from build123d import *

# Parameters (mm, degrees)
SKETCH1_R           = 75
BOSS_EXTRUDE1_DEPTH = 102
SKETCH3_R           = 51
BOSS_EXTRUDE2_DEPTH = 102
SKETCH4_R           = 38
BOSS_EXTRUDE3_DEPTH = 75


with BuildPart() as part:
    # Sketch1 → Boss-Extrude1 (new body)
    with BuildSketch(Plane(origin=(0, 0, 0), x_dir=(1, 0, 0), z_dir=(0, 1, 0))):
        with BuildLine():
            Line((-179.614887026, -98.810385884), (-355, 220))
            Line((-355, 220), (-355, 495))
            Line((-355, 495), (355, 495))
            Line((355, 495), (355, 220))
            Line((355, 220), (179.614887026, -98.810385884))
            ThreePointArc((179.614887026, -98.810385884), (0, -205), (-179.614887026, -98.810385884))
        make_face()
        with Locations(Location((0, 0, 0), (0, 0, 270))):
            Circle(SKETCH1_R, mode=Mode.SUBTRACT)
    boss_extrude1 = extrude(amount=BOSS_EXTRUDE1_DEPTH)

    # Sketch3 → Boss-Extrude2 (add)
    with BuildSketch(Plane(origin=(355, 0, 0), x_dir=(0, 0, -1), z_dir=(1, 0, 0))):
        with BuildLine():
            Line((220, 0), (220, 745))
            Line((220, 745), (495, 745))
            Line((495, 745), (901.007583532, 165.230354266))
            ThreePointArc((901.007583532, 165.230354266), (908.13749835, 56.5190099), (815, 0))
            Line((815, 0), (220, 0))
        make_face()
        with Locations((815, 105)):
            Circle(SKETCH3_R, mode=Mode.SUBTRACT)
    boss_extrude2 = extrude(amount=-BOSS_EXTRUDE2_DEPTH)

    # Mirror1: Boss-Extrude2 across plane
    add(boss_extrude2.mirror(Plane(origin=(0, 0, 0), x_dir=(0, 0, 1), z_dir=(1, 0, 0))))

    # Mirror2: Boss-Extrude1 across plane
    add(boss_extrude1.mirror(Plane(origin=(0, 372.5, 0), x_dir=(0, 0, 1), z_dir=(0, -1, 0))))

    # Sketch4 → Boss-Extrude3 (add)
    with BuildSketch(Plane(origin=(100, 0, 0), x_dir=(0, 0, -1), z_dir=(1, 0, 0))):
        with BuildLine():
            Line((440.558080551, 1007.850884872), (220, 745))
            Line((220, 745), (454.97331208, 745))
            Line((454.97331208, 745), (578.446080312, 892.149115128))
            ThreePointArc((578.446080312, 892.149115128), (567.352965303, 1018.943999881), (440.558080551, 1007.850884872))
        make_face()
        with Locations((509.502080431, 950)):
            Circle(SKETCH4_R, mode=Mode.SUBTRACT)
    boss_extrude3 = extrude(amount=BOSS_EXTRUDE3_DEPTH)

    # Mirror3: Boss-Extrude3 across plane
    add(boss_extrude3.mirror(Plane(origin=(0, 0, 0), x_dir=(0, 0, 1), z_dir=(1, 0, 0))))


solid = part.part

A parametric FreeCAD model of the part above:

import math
import FreeCAD as App
import Part
import Sketcher
Q = App.Units.Quantity

doc = App.newDocument("Part")
params = doc.addObject("Spreadsheet::Sheet", "Params")
for row, (alias, value) in enumerate([
    ("sketch1_diameter", "150 mm"),
    ("sketch1_radius", "205 mm"),
    ("sketch1_width", "710 mm"),
    ("sketch1_height", "275 mm"),
    ("pad1_length", "102 mm"),
    ("sketch2_diameter", "102 mm"),
    ("sketch2_radius", "105 mm"),
    ("sketch2_width", "745 mm"),
    ("sketch2_height", "595 mm"),
    ("sketch2_height2", "275 mm"),
    ("pad2_length", "102 mm"),
    ("sketch3_diameter", "76 mm"),
    ("sketch3_radius", "90 mm"),
    ("pad3_length", "75 mm"),
], start=1):
    params.set(f"A{row}", alias)
    params.set(f"B{row}", "=" + value)
    params.setAlias(f"B{row}", alias)

body = doc.addObject("PartDesign::Body", "Body")

sketch1 = body.newObject("Sketcher::SketchObject", "Sketch")
sketch1.AttachmentSupport = (doc.getObject("XZ_Plane"), [""])
sketch1.MapMode = "FlatFace"
sketch1.addGeometry([
    Part.LineSegment(App.Vector(-355, -220, 0), App.Vector(-180, 99, 0)),
    Part.ArcOfCircle(Part.Circle(App.Vector(0, 0, 0), App.Vector(0, 0, 1), 205), math.radians(29), math.radians(151)),
    Part.LineSegment(App.Vector(180, 99, 0), App.Vector(355, -220, 0)),
    Part.LineSegment(App.Vector(355, -220, 0), App.Vector(355, -495, 0)),
    Part.LineSegment(App.Vector(355, -495, 0), App.Vector(-355, -495, 0)),
    Part.LineSegment(App.Vector(-355, -495, 0), App.Vector(-355, -220, 0)),
    Part.Circle(App.Vector(0, 0, 0), App.Vector(0, 0, 1), 75),
], False)
sketch1.addConstraint([
    Sketcher.Constraint("Tangent", 0, 2, 1, 2),
    Sketcher.Constraint("Tangent", 1, 1, 2, 1),
    Sketcher.Constraint("Coincident", 2, 2, 3, 1),
    Sketcher.Constraint("Coincident", 3, 2, 4, 1),
    Sketcher.Constraint("Coincident", 4, 2, 5, 1),
    Sketcher.Constraint("Coincident", 5, 2, 0, 1),
    Sketcher.Constraint("Vertical", 3),
    Sketcher.Constraint("Horizontal", 4),
    Sketcher.Constraint("Vertical", 5),
    Sketcher.Constraint("Coincident", 1, 3, -1, 1),
    Sketcher.Constraint("Coincident", 6, 3, -1, 1),
    Sketcher.Constraint("Symmetric", 2, 2, 5, 2, -2),
    Sketcher.Constraint("Diameter", 6, 150.0),
    Sketcher.Constraint("Radius", 1, 205.0),
    Sketcher.Constraint("DistanceX", 4, 2, 4, 1, 710.0),
    Sketcher.Constraint("DistanceY", 3, 2, 3, 1, 275.0),
    Sketcher.Constraint("DistanceY", 2, 2, -1, 1, 220.0),
])
sketch1.setExpression("Constraints[12]", "Params.sketch1_diameter")
sketch1.setExpression("Constraints[13]", "Params.sketch1_radius")
sketch1.setExpression("Constraints[14]", "Params.sketch1_width")
sketch1.setExpression("Constraints[15]", "Params.sketch1_height")
pad1 = body.newObject("PartDesign::Pad", "Pad")
pad1.Profile = sketch1
pad1.setExpression("Length", "Params.pad1_length")
pad1.Reversed = True

sketch2 = body.newObject("Sketcher::SketchObject", "Sketch001")
sketch2.AttachmentSupport = (doc.getObject("YZ_Plane"), [""])
sketch2.MapMode = "FlatFace"
sketch2.AttachmentOffset = App.Placement(App.Vector(0, 0, 355), App.Rotation())
sketch2.addGeometry([
    Part.LineSegment(App.Vector(745, -220, 0), App.Vector(0, -220, 0)),
    Part.LineSegment(App.Vector(0, -220, 0), App.Vector(0, -815, 0)),
    Part.ArcOfCircle(Part.Circle(App.Vector(105, -815, 0), App.Vector(0, 0, 1), 105), math.radians(180), math.radians(305)),
    Part.LineSegment(App.Vector(165, -901, 0), App.Vector(745, -495, 0)),
    Part.LineSegment(App.Vector(745, -495, 0), App.Vector(745, -220, 0)),
    Part.Circle(App.Vector(105, -815, 0), App.Vector(0, 0, 1), 51),
], False)
sketch2.addConstraint([
    Sketcher.Constraint("Coincident", 0, 2, 1, 1),
    Sketcher.Constraint("Tangent", 1, 2, 2, 1),
    Sketcher.Constraint("Tangent", 2, 2, 3, 1),
    Sketcher.Constraint("Coincident", 3, 2, 4, 1),
    Sketcher.Constraint("Coincident", 4, 2, 0, 1),
    Sketcher.Constraint("Horizontal", 0),
    Sketcher.Constraint("Vertical", 1),
    Sketcher.Constraint("Vertical", 4),
    Sketcher.Constraint("Coincident", 5, 3, 2, 3),
    Sketcher.Constraint("PointOnObject", 0, 2, -2),
    Sketcher.Constraint("Diameter", 5, 102.0),
    Sketcher.Constraint("Radius", 2, 105.0),
    Sketcher.Constraint("DistanceX", 0, 2, 0, 1, 745.0),
    Sketcher.Constraint("DistanceY", 1, 2, 1, 1, 595.0),
    Sketcher.Constraint("DistanceY", 4, 1, 4, 2, 275.0),
    Sketcher.Constraint("DistanceY", 2, 3, -1, 1, 815.0),
])
sketch2.setExpression("Constraints[10]", "Params.sketch2_diameter")
sketch2.setExpression("Constraints[11]", "Params.sketch2_radius")
sketch2.setExpression("Constraints[12]", "Params.sketch2_width")
sketch2.setExpression("Constraints[13]", "Params.sketch2_height")
sketch2.setExpression("Constraints[14]", "Params.sketch2_height2")
pad2 = body.newObject("PartDesign::Pad", "Pad001")
pad2.Profile = sketch2
pad2.setExpression("Length", "Params.pad2_length")
pad2.Reversed = True
doc.recompute()

mirrored = body.newObject("PartDesign::Mirrored", "Mirrored")
mirrored.Originals = [pad2]
mirrored.MirrorPlane = (doc.getObject("YZ_Plane"), [""])
body.Tip = mirrored
doc.recompute()

datumplane = body.newObject("PartDesign::Plane", "DatumPlane")
datumplane.AttachmentSupport = (doc.getObject("XZ_Plane"), [""])
datumplane.MapMode = "FlatFace"
datumplane.AttachmentOffset = App.Placement(App.Vector(0, 0, -372.5), App.Rotation())
mirrored2 = body.newObject("PartDesign::Mirrored", "Mirrored001")
mirrored2.Originals = [pad1]
mirrored2.MirrorPlane = (datumplane, [""])
body.Tip = mirrored2

sketch3 = body.newObject("Sketcher::SketchObject", "Sketch002")
sketch3.AttachmentSupport = (doc.getObject("YZ_Plane"), [""])
sketch3.MapMode = "FlatFace"
sketch3.AttachmentOffset = App.Placement(App.Vector(0, 0, 100), App.Rotation())
sketch3.addGeometry([
    Part.LineSegment(App.Vector(1008, -441, 0), App.Vector(745, -220, 0)),
    Part.LineSegment(App.Vector(745, -220, 0), App.Vector(745, -455, 0)),
    Part.LineSegment(App.Vector(745, -455, 0), App.Vector(892, -578, 0)),
    Part.ArcOfCircle(Part.Circle(App.Vector(950, -510, 0), App.Vector(0, 0, 1), 90), math.radians(-130), math.radians(50)),
    Part.Circle(App.Vector(950, -510, 0), App.Vector(0, 0, 1), 38),
], False)
sketch3.addConstraint([
    Sketcher.Constraint("Coincident", 0, 2, 1, 1),
    Sketcher.Constraint("Coincident", 1, 2, 2, 1),
    Sketcher.Constraint("Tangent", 2, 2, 3, 1),
    Sketcher.Constraint("Tangent", 3, 2, 0, 1),
    Sketcher.Constraint("Vertical", 1),
    Sketcher.Constraint("Coincident", 4, 3, 3, 3),
    Sketcher.Constraint("Parallel", 0, 2),
    Sketcher.Constraint("Diameter", 4, 76.0),
    Sketcher.Constraint("Radius", 3, 90.0),
    Sketcher.Constraint("Angle", 0, Q("140 deg")),
    Sketcher.Constraint("DistanceX", -1, 1, 3, 3, 950.0),
    Sketcher.Constraint("DistanceX", -1, 1, 0, 2, 745.0),
    Sketcher.Constraint("DistanceY", 0, 2, -1, 1, 220.0),
])
sketch3.setExpression("Constraints[7]", "Params.sketch3_diameter")
sketch3.setExpression("Constraints[8]", "Params.sketch3_radius")
pad3 = body.newObject("PartDesign::Pad", "Pad002")
pad3.Profile = sketch3
pad3.setExpression("Length", "Params.pad3_length")
doc.recompute()

mirrored3 = body.newObject("PartDesign::Mirrored", "Mirrored002")
mirrored3.Originals = [pad3]
mirrored3.MirrorPlane = (doc.getObject("YZ_Plane"), [""])
body.Tip = mirrored3

doc.recompute()
